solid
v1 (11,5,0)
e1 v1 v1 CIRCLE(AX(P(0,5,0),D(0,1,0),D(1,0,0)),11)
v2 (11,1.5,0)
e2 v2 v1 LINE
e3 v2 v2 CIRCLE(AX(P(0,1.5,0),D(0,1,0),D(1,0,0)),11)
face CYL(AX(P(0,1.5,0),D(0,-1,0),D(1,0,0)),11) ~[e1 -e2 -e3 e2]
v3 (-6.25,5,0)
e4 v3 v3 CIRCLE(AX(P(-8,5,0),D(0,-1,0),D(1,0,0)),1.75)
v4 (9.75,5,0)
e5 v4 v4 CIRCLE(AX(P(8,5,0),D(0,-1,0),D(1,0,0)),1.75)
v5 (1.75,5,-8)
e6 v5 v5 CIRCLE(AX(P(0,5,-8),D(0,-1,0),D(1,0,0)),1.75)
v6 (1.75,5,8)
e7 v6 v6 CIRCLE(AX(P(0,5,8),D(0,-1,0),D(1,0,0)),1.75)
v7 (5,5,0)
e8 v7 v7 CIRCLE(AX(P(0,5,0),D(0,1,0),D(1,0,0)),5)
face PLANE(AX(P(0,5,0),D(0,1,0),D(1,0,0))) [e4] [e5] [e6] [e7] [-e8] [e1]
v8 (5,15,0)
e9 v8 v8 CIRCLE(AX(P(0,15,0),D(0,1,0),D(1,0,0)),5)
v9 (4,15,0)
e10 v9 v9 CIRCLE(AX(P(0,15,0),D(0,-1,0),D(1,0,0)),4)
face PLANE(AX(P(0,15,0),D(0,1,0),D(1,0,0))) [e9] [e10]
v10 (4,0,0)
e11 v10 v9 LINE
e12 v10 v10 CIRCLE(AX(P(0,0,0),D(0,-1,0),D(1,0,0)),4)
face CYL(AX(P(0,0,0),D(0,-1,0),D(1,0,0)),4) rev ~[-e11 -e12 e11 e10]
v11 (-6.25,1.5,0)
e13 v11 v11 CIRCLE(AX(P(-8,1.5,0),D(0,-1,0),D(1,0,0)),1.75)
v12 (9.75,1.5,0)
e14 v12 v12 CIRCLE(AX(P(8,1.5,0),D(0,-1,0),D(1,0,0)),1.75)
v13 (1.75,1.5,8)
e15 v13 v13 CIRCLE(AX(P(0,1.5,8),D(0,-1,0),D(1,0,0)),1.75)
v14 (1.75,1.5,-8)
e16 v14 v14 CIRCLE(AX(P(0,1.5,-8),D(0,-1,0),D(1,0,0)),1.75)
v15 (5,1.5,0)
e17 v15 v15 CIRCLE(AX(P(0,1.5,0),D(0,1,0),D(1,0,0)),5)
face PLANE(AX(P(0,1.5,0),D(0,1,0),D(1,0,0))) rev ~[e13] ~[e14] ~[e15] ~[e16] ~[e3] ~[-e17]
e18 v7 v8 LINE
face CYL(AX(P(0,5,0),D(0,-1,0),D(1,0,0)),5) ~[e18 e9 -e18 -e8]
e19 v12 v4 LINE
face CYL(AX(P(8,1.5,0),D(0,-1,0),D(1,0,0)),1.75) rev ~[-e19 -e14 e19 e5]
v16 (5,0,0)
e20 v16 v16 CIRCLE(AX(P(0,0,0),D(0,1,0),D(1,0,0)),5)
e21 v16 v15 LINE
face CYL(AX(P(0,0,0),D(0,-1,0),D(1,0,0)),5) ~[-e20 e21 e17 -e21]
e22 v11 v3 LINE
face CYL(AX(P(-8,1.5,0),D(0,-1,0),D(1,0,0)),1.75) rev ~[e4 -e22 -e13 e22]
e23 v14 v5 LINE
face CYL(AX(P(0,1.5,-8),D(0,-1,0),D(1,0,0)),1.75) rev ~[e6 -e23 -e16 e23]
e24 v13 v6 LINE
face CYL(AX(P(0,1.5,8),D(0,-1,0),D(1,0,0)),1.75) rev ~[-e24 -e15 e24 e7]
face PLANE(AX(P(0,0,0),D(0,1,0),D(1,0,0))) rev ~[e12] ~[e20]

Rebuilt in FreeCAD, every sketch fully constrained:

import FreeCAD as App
import Part
import Sketcher
Q = App.Units.Quantity

doc = App.newDocument("Part")
params = doc.addObject("Spreadsheet::Sheet", "Params")
for row, (alias, value) in enumerate([
    ("sketch1_diameter", "10 mm"),
    ("pad1_length", "1.5 mm"),
    ("sketch2_diameter", "22 mm"),
    ("pad2_length", "3.5 mm"),
    ("sketch3_diameter", "10 mm"),
    ("pad3_length", "10 mm"),
    ("sketch4_diameter", "8 mm"),
    ("pocket1_length", "16 mm"),
    ("sketch5_diameter", "3.5 mm"),
    ("pocket2_length", "16 mm"),
], start=1):
    params.set(f"A{row}", alias)
    params.set(f"B{row}", "=" + value)
    params.setAlias(f"B{row}", alias)

body = doc.addObject("PartDesign::Body", "Body")

# Sketch on XZ plane
sketch1 = body.newObject("Sketcher::SketchObject", "Sketch")
sketch1.AttachmentSupport = (doc.getObject("XZ_Plane"), [""])
sketch1.MapMode = "FlatFace"
sketch1.addGeometry(Part.Circle(App.Vector(0, 0, 0), App.Vector(0, 0, 1), 5), False)
sketch1.addConstraint([
    Sketcher.Constraint("Coincident", 0, 3, -1, 1),
    Sketcher.Constraint("Diameter", 0, Q("10 mm")),
])
sketch1.setExpression("Constraints[1]", "Params.sketch1_diameter")
pad1 = body.newObject("PartDesign::Pad", "Pad")
pad1.Profile = sketch1
pad1.setExpression("Length", "Params.pad1_length")
pad1.Reversed = True

# Sketch on XZ plane
sketch2 = body.newObject("Sketcher::SketchObject", "Sketch001")
sketch2.AttachmentSupport = (doc.getObject("XZ_Plane"), [""])
sketch2.MapMode = "FlatFace"
sketch2.AttachmentOffset = App.Placement(App.Vector(0, 0, -1.5), App.Rotation())
sketch2.addGeometry(Part.Circle(App.Vector(0, 0, 0), App.Vector(0, 0, 1), 11), False)
sketch2.addConstraint([
    Sketcher.Constraint("Coincident", 0, 3, -1, 1),
    Sketcher.Constraint("Diameter", 0, Q("22 mm")),
])
sketch2.setExpression("Constraints[1]", "Params.sketch2_diameter")
pad2 = body.newObject("PartDesign::Pad", "Pad001")
pad2.Profile = sketch2
pad2.setExpression("Length", "Params.pad2_length")
pad2.Reversed = True

# Sketch on XZ plane
sketch3 = body.newObject("Sketcher::SketchObject", "Sketch002")
sketch3.AttachmentSupport = (doc.getObject("XZ_Plane"), [""])
sketch3.MapMode = "FlatFace"
sketch3.AttachmentOffset = App.Placement(App.Vector(0, 0, -5), App.Rotation())
sketch3.addGeometry(Part.Circle(App.Vector(0, 0, 0), App.Vector(0, 0, 1), 5), False)
sketch3.addConstraint([
    Sketcher.Constraint("Coincident", 0, 3, -1, 1),
    Sketcher.Constraint("Diameter", 0, Q("10 mm")),
])
sketch3.setExpression("Constraints[1]", "Params.sketch3_diameter")
pad3 = body.newObject("PartDesign::Pad", "Pad002")
pad3.Profile = sketch3
pad3.setExpression("Length", "Params.pad3_length")
pad3.Reversed = True

# Sketch on XZ plane
sketch4 = body.newObject("Sketcher::SketchObject", "Sketch003")
sketch4.AttachmentSupport = (doc.getObject("XZ_Plane"), [""])
sketch4.MapMode = "FlatFace"
sketch4.addGeometry(Part.Circle(App.Vector(0, 0, 0), App.Vector(0, 0, 1), 4), False)
sketch4.addConstraint([
    Sketcher.Constraint("Coincident", 0, 3, -1, 1),
    Sketcher.Constraint("Diameter", 0, Q("8 mm")),
])
sketch4.setExpression("Constraints[1]", "Params.sketch4_diameter")
pocket1 = body.newObject("PartDesign::Pocket", "Pocket")
pocket1.Profile = sketch4
pocket1.setExpression("Length", "Params.pocket1_length")

# Sketch on XZ plane
sketch5 = body.newObject("Sketcher::SketchObject", "Sketch004")
sketch5.AttachmentSupport = (doc.getObject("XZ_Plane"), [""])
sketch5.MapMode = "FlatFace"
sketch5.AttachmentOffset = App.Placement(App.Vector(0, 0, -1.5), App.Rotation())
sketch5.addGeometry([
    Part.Circle(App.Vector(8, 0, 0), App.Vector(0, 0, 1), 1.8),
    Part.Circle(App.Vector(0, -8, 0), App.Vector(0, 0, 1), 1.8),
    Part.Circle(App.Vector(-8, 0, 0), App.Vector(0, 0, 1), 1.8),
    Part.Circle(App.Vector(0, 8, 0), App.Vector(0, 0, 1), 1.8),
], False)
sketch5.addConstraint([
    Sketcher.Constraint("Equal", 0, 1),
    Sketcher.Constraint("Equal", 1, 2),
    Sketcher.Constraint("Equal", 2, 3),
    Sketcher.Constraint("Symmetric", 0, 3, 2, 3, -1, 1),
    Sketcher.Constraint("Symmetric", 1, 3, 3, 3, -1, 1),
    Sketcher.Constraint("PointOnObject", 0, 3, -1),
    Sketcher.Constraint("PointOnObject", 1, 3, -2),
    Sketcher.Constraint("Diameter", 0, Q("3.5 mm")),
    Sketcher.Constraint("DistanceX", -1, 1, 0, 3, Q("8 mm")),
    Sketcher.Constraint("DistanceY", 1, 3, -1, 1, Q("8 mm")),
])
sketch5.setExpression("Constraints[7]", "Params.sketch5_diameter")
pocket2 = body.newObject("PartDesign::Pocket", "Pocket001")
pocket2.Profile = sketch5
pocket2.setExpression("Length", "Params.pocket2_length")

doc.recompute()
